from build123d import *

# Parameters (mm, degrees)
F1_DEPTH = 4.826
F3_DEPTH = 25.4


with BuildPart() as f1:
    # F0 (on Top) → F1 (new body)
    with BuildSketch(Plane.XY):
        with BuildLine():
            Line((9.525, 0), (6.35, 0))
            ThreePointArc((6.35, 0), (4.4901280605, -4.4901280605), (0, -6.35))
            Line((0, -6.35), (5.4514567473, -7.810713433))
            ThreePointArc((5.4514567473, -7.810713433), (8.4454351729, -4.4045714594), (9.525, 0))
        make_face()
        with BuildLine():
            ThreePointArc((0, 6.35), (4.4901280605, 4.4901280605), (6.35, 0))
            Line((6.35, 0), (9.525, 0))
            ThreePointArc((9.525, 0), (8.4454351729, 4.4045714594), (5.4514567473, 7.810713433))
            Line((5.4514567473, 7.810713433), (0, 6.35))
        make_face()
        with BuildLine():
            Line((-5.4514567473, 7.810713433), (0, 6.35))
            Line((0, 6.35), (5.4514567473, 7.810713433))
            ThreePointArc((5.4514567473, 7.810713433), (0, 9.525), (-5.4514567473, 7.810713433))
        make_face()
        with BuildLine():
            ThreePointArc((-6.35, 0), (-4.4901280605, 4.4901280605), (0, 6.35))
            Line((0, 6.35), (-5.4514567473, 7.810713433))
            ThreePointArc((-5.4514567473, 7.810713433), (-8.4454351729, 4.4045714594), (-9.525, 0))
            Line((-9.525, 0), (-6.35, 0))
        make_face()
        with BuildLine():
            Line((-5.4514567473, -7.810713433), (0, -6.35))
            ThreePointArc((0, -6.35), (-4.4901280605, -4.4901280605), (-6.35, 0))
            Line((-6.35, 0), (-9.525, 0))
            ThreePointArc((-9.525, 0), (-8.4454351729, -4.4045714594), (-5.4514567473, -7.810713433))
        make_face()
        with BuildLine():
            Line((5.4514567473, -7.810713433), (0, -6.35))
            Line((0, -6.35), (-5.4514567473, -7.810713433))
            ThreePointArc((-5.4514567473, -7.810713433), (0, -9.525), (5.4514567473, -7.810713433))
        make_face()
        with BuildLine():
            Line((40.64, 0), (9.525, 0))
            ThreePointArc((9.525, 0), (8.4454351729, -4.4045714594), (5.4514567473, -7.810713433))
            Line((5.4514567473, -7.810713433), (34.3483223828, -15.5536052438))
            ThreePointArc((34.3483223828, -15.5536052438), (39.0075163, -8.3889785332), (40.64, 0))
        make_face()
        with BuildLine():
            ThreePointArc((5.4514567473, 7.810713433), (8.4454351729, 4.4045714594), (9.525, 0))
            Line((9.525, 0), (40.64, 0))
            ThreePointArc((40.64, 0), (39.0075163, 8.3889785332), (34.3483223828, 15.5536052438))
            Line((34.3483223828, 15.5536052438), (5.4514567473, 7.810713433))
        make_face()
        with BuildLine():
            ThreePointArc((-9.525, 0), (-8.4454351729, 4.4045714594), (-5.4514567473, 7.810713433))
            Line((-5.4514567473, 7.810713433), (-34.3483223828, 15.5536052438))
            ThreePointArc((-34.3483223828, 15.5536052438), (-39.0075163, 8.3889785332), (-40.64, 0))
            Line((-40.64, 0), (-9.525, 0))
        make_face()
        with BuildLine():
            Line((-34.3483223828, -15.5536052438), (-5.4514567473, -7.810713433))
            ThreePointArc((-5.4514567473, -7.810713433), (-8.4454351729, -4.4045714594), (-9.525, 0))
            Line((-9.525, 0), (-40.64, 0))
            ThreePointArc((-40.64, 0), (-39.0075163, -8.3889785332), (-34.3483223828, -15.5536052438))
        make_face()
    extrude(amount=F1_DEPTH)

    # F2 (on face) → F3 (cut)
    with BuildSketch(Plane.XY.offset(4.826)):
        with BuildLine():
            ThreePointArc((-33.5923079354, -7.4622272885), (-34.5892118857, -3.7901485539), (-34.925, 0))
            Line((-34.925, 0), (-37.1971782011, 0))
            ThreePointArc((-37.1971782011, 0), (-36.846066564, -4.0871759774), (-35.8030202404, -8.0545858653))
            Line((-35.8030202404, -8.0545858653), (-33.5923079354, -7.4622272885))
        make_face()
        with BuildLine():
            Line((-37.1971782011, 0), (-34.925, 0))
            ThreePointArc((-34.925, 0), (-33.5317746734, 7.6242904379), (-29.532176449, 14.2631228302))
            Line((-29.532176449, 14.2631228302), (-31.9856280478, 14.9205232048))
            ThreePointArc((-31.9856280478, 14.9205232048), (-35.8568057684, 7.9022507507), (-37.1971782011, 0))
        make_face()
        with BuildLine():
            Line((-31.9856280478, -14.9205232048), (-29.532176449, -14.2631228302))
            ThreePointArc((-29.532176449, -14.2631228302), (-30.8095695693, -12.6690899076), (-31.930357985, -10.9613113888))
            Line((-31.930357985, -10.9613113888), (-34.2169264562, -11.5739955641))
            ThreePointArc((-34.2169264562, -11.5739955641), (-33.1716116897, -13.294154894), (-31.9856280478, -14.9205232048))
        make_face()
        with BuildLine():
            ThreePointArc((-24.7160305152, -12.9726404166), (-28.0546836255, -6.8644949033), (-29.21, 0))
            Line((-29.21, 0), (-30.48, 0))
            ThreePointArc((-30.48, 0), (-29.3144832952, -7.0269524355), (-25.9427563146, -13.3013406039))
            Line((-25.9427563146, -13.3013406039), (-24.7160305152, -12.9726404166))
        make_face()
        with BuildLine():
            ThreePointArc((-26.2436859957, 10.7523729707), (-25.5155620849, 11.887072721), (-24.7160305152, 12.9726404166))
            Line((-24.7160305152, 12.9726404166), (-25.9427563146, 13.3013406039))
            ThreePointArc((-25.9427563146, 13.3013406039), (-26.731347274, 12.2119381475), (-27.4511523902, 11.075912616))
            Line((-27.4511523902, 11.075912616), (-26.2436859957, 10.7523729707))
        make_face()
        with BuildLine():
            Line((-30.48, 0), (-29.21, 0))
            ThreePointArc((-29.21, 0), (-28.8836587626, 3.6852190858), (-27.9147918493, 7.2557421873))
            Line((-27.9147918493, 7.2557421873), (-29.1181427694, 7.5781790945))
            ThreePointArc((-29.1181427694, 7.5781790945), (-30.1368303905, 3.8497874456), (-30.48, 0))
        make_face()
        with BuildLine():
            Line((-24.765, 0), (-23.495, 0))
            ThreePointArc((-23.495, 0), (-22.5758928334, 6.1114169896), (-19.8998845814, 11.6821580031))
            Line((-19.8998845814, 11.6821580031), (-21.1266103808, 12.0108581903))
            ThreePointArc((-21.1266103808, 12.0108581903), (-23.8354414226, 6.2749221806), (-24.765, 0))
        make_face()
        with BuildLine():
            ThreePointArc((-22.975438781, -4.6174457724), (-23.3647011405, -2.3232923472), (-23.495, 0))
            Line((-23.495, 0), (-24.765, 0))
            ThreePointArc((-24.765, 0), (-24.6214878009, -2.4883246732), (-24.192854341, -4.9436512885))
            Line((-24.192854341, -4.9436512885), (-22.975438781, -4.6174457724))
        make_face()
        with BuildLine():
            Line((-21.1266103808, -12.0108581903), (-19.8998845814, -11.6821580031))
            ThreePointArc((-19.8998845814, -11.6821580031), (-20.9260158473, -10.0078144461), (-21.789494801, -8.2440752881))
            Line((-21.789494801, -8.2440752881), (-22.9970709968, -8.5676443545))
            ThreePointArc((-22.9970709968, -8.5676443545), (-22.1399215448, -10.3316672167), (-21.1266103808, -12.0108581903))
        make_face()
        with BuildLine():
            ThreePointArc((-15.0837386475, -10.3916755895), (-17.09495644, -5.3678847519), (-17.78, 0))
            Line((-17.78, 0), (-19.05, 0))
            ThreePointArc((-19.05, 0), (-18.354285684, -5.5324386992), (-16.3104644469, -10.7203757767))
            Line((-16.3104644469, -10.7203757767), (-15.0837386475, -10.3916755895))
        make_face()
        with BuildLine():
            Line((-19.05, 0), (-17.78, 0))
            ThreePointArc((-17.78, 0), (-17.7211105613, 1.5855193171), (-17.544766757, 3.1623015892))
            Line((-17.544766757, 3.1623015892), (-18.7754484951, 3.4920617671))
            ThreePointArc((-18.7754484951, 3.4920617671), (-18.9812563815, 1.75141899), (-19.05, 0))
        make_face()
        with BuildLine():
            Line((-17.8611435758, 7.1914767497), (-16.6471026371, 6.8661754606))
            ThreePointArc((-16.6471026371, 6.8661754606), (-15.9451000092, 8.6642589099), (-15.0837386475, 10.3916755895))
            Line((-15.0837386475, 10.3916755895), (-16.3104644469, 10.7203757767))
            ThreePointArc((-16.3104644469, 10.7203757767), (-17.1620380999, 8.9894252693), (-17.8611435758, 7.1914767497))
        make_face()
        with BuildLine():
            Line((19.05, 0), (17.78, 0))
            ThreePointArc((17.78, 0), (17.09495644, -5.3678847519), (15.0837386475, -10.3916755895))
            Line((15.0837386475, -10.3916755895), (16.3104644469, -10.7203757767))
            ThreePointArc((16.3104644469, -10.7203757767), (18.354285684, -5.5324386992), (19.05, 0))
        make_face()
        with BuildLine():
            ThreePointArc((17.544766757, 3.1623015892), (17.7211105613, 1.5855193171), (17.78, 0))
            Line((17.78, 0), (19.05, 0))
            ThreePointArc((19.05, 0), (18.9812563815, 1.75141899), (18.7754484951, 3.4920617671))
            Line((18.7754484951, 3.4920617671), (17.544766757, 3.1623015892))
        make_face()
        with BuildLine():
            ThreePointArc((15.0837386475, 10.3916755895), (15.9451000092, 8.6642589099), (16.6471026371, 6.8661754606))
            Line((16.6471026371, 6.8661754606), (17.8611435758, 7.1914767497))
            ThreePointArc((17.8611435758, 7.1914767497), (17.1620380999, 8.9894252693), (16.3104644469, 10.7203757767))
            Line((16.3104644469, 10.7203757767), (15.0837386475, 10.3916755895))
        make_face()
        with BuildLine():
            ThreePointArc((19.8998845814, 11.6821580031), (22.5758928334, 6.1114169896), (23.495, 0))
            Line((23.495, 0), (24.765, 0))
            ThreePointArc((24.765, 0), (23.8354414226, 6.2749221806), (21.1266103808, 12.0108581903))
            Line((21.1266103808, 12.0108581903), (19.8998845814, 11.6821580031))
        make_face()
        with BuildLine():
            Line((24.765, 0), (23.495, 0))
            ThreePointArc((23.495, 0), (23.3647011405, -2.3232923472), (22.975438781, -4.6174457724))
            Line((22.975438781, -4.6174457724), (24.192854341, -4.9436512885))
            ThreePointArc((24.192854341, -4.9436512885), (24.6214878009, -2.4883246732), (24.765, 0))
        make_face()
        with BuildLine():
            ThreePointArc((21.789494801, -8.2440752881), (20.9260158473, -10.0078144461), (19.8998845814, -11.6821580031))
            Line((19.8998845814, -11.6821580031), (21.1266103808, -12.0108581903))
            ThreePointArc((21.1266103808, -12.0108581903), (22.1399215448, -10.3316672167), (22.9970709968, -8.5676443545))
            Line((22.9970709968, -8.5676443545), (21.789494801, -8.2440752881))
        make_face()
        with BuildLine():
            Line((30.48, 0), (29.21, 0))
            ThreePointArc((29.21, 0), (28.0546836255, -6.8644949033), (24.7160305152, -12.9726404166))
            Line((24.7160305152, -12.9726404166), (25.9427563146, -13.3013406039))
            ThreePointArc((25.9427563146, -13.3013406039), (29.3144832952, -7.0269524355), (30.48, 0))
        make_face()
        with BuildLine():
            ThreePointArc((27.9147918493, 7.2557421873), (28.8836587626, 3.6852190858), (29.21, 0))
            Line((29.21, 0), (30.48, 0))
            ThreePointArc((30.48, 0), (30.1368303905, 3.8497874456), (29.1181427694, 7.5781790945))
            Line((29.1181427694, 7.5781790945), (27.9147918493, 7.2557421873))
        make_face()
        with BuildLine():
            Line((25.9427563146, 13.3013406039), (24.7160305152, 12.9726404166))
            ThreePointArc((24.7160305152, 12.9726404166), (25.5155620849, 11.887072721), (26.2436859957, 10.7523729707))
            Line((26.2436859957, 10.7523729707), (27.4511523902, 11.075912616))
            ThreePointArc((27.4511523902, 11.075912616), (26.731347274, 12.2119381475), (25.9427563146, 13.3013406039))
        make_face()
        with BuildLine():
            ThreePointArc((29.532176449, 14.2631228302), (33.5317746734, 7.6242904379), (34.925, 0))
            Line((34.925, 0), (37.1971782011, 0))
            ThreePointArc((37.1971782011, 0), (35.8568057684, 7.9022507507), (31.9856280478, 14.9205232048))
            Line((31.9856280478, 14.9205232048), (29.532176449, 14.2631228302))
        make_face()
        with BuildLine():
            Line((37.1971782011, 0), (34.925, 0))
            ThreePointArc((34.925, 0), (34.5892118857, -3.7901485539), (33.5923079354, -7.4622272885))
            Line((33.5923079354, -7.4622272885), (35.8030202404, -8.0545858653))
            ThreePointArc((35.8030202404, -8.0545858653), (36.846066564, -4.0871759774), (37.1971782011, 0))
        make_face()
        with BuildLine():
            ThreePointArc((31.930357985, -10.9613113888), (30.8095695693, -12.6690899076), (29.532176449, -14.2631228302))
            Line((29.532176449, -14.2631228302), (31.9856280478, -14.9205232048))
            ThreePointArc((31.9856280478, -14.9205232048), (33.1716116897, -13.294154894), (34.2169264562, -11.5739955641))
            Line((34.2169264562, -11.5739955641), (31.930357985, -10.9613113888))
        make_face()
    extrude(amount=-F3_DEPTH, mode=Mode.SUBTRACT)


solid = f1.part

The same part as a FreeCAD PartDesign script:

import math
import FreeCAD as App
import Part
import Sketcher

V = App.Vector
Q = App.Units.Quantity

doc = App.newDocument("Part")
body = doc.addObject("PartDesign::Body", "Body")

# Sketch on XY plane
sketch1 = body.newObject("Sketcher::SketchObject", "Sketch")
sketch1.AttachmentSupport = (doc.getObject("XY_Plane"), [""])
sketch1.MapMode = "FlatFace"
sketch1.addGeometry(Part.ArcOfCircle(Part.Circle(V(0, 0, 0), V(0, 0, 1), 10), math.radians(-125), math.radians(-55)), False)
sketch1.addGeometry(Part.LineSegment(V(5, -8, 0), V(34, -16, 0)), False)
sketch1.addGeometry(Part.ArcOfCircle(Part.Circle(V(18, 0, 0), V(0, 0, 1), 22), math.radians(-44), math.radians(0)), False)
sketch1.addGeometry(Part.ArcOfCircle(Part.Circle(V(18, 0, 0), V(0, 0, 1), 22), math.radians(0), math.radians(44)), False)
sketch1.addGeometry(Part.LineSegment(V(34, 16, 0), V(5, 8, 0)), False)
sketch1.addGeometry(Part.ArcOfCircle(Part.Circle(V(0, 0, 0), V(0, 0, 1), 10), math.radians(55), math.radians(125)), False)
sketch1.addGeometry(Part.LineSegment(V(-5, 8, 0), V(-34, 16, 0)), False)
sketch1.addGeometry(Part.ArcOfCircle(Part.Circle(V(-18, 0, 0), V(0, 0, 1), 22), math.radians(136), math.radians(180)), False)
sketch1.addGeometry(Part.ArcOfCircle(Part.Circle(V(-18, 0, 0), V(0, 0, 1), 22), math.radians(180), math.radians(224)), False)
sketch1.addGeometry(Part.LineSegment(V(-34, -16, 0), V(-5, -8, 0)), False)
sketch1.addGeometry(Part.ArcOfCircle(Part.Circle(V(0, 0, 0), V(0, 0, 1), 6), math.radians(-90), math.radians(0)), False)
sketch1.addGeometry(Part.ArcOfCircle(Part.Circle(V(0, 0, 0), V(0, 0, 1), 6), math.radians(180), math.radians(270)), False)
sketch1.addGeometry(Part.ArcOfCircle(Part.Circle(V(0, 0, 0), V(0, 0, 1), 6), math.radians(90), math.radians(180)), False)
sketch1.addGeometry(Part.ArcOfCircle(Part.Circle(V(0, 0, 0), V(0, 0, 1), 6), math.radians(0), math.radians(90)), False)
sketch1.addConstraint(Sketcher.Constraint("Coincident", 0, 2, 1, 1))
sketch1.addConstraint(Sketcher.Constraint("Coincident", 1, 2, 2, 1))
sketch1.addConstraint(Sketcher.Constraint("Tangent", 2, 2, 3, 1))
sketch1.addConstraint(Sketcher.Constraint("Coincident", 3, 2, 4, 1))
sketch1.addConstraint(Sketcher.Constraint("Coincident", 4, 2, 5, 1))
sketch1.addConstraint(Sketcher.Constraint("Coincident", 5, 2, 6, 1))
sketch1.addConstraint(Sketcher.Constraint("Coincident", 6, 2, 7, 1))
sketch1.addConstraint(Sketcher.Constraint("Tangent", 7, 2, 8, 1))
sketch1.addConstraint(Sketcher.Constraint("Coincident", 8, 2, 9, 1))
sketch1.addConstraint(Sketcher.Constraint("Coincident", 9, 2, 0, 1))
sketch1.addConstraint(Sketcher.Constraint("Tangent", 10, 1, 11, 2))
sketch1.addConstraint(Sketcher.Constraint("Tangent", 11, 1, 12, 2))
sketch1.addConstraint(Sketcher.Constraint("Tangent", 12, 1, 13, 2))
sketch1.addConstraint(Sketcher.Constraint("Tangent", 13, 1, 10, 2))
sketch1.addConstraint(Sketcher.Constraint("Coincident", 0, 3, -1, 1))
sketch1.addConstraint(Sketcher.Constraint("Coincident", 5, 3, -1, 1))
sketch1.addConstraint(Sketcher.Constraint("Coincident", 10, 3, -1, 1))
sketch1.addConstraint(Sketcher.Constraint("Equal", 2, 3))
sketch1.addConstraint(Sketcher.Constraint("Equal", 0, 5))
sketch1.addConstraint(Sketcher.Constraint("Equal", 3, 7))
sketch1.addConstraint(Sketcher.Constraint("Equal", 7, 8))
sketch1.addConstraint(Sketcher.Constraint("Equal", 10, 11))
sketch1.addConstraint(Sketcher.Constraint("Symmetric", 2, 3, 7, 3, -1, 1))
sketch1.addConstraint(Sketcher.Constraint("Symmetric", 3, 2, 6, 2, -2))
sketch1.addConstraint(Sketcher.Constraint("PointOnObject", 2, 2, -1))
sketch1.addConstraint(Sketcher.Constraint("PointOnObject", 7, 2, -1))
sketch1.addConstraint(Sketcher.Constraint("PointOnObject", 10, 1, -2))
sketch1.addConstraint(Sketcher.Constraint("PointOnObject", 11, 1, -1))
sketch1.addConstraint(Sketcher.Constraint("PointOnObject", 12, 1, -2))
sketch1.addConstraint(Sketcher.Constraint("PointOnObject", 13, 1, -1))
sketch1.addConstraint(Sketcher.Constraint("Parallel", 1, 6))
sketch1.addConstraint(Sketcher.Constraint("Parallel", 4, 9))
sketch1.addConstraint(Sketcher.Constraint("Horizontal", 4, 2, 5, 2))
sketch1.addConstraint(Sketcher.Constraint("Horizontal", 1, 2, 8, 2))
sketch1.addConstraint(Sketcher.Constraint("Vertical", 1, 2, 3, 2))
sketch1.addConstraint(Sketcher.Constraint("Radius", 10, Q("0.25 in")))
sketch1.addConstraint(Sketcher.Constraint("Angle", 1, Q("-15 deg")))
sketch1.addConstraint(Sketcher.Constraint("Radius", 0, Q("0.375 in")))
sketch1.addConstraint(Sketcher.Constraint("DistanceX", -1, 1, 2, 2, Q("1.6 in")))
sketch1.addConstraint(Sketcher.Constraint("Radius", 2, 22.37081))
sketch1.addConstraint(Sketcher.Constraint("DistanceX", 2, 3, 1, 2, 16.079132))
pad1 = body.newObject("PartDesign::Pad", "Pad")
pad1.Profile = sketch1
pad1.Length = Q("0.19 in")

# Sketch on XY plane
sketch2 = body.newObject("Sketcher::SketchObject", "Sketch001")
sketch2.AttachmentSupport = (doc.getObject("XY_Plane"), [""])
sketch2.MapMode = "FlatFace"
sketch2.AttachmentOffset = App.Placement(V(0, 0, 0.19 * 25.4), App.Rotation())
sketch2.addGeometry(Part.ArcOfCircle(Part.Circle(V(-13.366792, 0, 0), V(0, 0, 1), 21.558208), math.radians(180), math.radians(200.251598)), False)
sketch2.addGeometry(Part.ArcOfCircle(Part.Circle(V(-13.366792, 0, 0), V(0, 0, 1), 21.558208), math.radians(138.577234), math.radians(180)), False)
sketch2.addGeometry(Part.LineSegment(V(-29.532176, 14.263123, 0), V(-31.985628, 14.920523, 0)), False)
sketch2.addGeometry(Part.ArcOfCircle(Part.Circle(V(-13.232882, 0, 0), V(0, 0, 1), 23.964297), math.radians(141.492674), math.radians(180)), False)
sketch2.addGeometry(Part.ArcOfCircle(Part.Circle(V(-13.232882, 0, 0), V(0, 0, 1), 23.964297), math.radians(-180), math.radians(-160.360086)), False)
sketch2.addGeometry(Part.LineSegment(V(-35.80302, -8.054586, 0), V(-33.592308, -7.462227, 0)), False)
sketch2.addGeometry(Part.LineSegment(V(-31.985628, -14.920523, 0), V(-29.532176, -14.263123, 0)), False)
sketch2.addGeometry(Part.ArcOfCircle(Part.Circle(V(-13.366792, 0, 0), V(0, 0, 1), 21.558208), math.radians(-149.439234), math.radians(-138.577234)), False)
sketch2.addGeometry(Part.LineSegment(V(-31.930358, -10.961311, 0), V(-34.216926, -11.573996, 0)), False)
sketch2.addGeometry(Part.ArcOfCircle(Part.Circle(V(-13.232882, 0, 0), V(0, 0, 1), 23.964297), math.radians(-151.120554), math.radians(-141.492674)), False)
sketch2.addGeometry(Part.ArcOfCircle(Part.Circle(V(-8.239101, 0, 0), V(0, 0, 1), 20.970899), math.radians(180), math.radians(218.214118)), False)
sketch2.addGeometry(Part.ArcOfCircle(Part.Circle(V(-8.239101, 0, 0), V(0, 0, 1), 20.970899), math.radians(159.757699), math.radians(180)), False)
sketch2.addGeometry(Part.LineSegment(V(-27.914792, 7.255742, 0), V(-29.118143, 7.578179, 0)), False)
sketch2.addGeometry(Part.ArcOfCircle(Part.Circle(V(-8.714336, 0, 0), V(0, 0, 1), 21.765664), math.radians(159.624497), math.radians(217.670225)), False)
sketch2.addGeometry(Part.LineSegment(V(-25.942756, -13.301341, 0), V(-24.716031, -12.97264, 0)), False)
sketch2.addGeometry(Part.ArcOfCircle(Part.Circle(V(-8.239101, 0, 0), V(0, 0, 1), 20.970899), math.radians(141.785882), math.radians(149.15427)), False)
sketch2.addGeometry(Part.LineSegment(V(-24.716031, 12.97264, 0), V(-25.942756, 13.301341, 0)), False)
sketch2.addGeometry(Part.ArcOfCircle(Part.Circle(V(-8.714336, 0, 0), V(0, 0, 1), 21.765664), math.radians(142.329775), math.radians(149.411351)), False)
sketch2.addGeometry(Part.LineSegment(V(-27.451152, 11.075913, 0), V(-26.243686, 10.752373, 0)), False)
sketch2.addGeometry(Part.ArcOfCircle(Part.Circle(V(-2.717132, 0, 0), V(0, 0, 1), 20.777868), math.radians(145.789119), math.radians(180)), False)
sketch2.addGeometry(Part.LineSegment(V(-19.899885, 11.682158, 0), V(-21.12661, 12.010858, 0)), False)
sketch2.addGeometry(Part.ArcOfCircle(Part.Circle(V(-3.121002, 0, 0), V(0, 0, 1), 21.643998), math.radians(146.294251), math.radians(180)), False)
sketch2.addGeometry(Part.ArcOfCircle(Part.Circle(V(-3.121002, 0, 0), V(0, 0, 1), 21.643998), math.radians(180), math.radians(193.203332)), False)
sketch2.addGeometry(Part.LineSegment(V(-24.192854, -4.943651, 0), V(-22.975439, -4.617446, 0)), False)
sketch2.addGeometry(Part.ArcOfCircle(Part.Circle(V(-2.717132, 0, 0), V(0, 0, 1), 20.777868), math.radians(180), math.radians(192.839989)), False)
sketch2.addGeometry(Part.LineSegment(V(-21.12661, -12.010858, 0), V(-19.899885, -11.682158, 0)), False)
sketch2.addGeometry(Part.ArcOfCircle(Part.Circle(V(-2.717132, 0, 0), V(0, 0, 1), 20.777868), math.radians(-156.623468), math.radians(-145.789119)), False)
sketch2.addGeometry(Part.LineSegment(V(-21.789495, -8.244075, 0), V(-22.997071, -8.567644, 0)), False)
sketch2.addGeometry(Part.ArcOfCircle(Part.Circle(V(-3.121002, 0, 0), V(0, 0, 1), 21.643998), math.radians(-156.681384), math.radians(-146.294251)), False)
sketch2.addGeometry(Part.ArcOfCircle(Part.Circle(V(3.593437, 0, 0), V(0, 0, 1), 21.373437), math.radians(180), math.radians(209.090848)), False)
sketch2.addGeometry(Part.ArcOfCircle(Part.Circle(V(3.593437, 0, 0), V(0, 0, 1), 21.373437), math.radians(171.49158), math.radians(180)), False)
sketch2.addGeometry(Part.LineSegment(V(-17.544767, 3.162302, 0), V(-18.775448, 3.492062, 0)), False)
sketch2.addGeometry(Part.ArcOfCircle(Part.Circle(V(3.295304, 0, 0), V(0, 0, 1), 22.345304), math.radians(171.009122), math.radians(180)), False)
sketch2.addGeometry(Part.ArcOfCircle(Part.Circle(V(3.295304, 0, 0), V(0, 0, 1), 22.345304), math.radians(180), math.radians(208.669707)), False)
sketch2.addGeometry(Part.LineSegment(V(-16.310464, -10.720376, 0), V(-15.083739, -10.391676, 0)), False)
sketch2.addGeometry(Part.LineSegment(V(-17.861144, 7.191477, 0), V(-16.647103, 6.866175, 0)), False)
sketch2.addGeometry(Part.ArcOfCircle(Part.Circle(V(3.593437, 0, 0), V(0, 0, 1), 21.373437), math.radians(150.909152), math.radians(161.261581)), False)
sketch2.addGeometry(Part.LineSegment(V(-15.083739, 10.391676, 0), V(-16.310464, 10.720376, 0)), False)
sketch2.addGeometry(Part.ArcOfCircle(Part.Circle(V(3.295304, 0, 0), V(0, 0, 1), 22.345304), math.radians(151.330293), math.radians(161.226132)), False)
sketch2.addGeometry(Part.ArcOfCircle(Part.Circle(V(-3.593437, 0, 0), V(0, 0, 1), 21.373437), math.radians(-29.090848), math.radians(0)), False)
sketch2.addGeometry(Part.LineSegment(V(15.083739, -10.391676, 0), V(16.310464, -10.720376, 0)), False)
sketch2.addGeometry(Part.ArcOfCircle(Part.Circle(V(-3.295304, 0, 0), V(0, 0, 1), 22.345304), math.radians(-28.669707), math.radians(0)), False)
sketch2.addGeometry(Part.ArcOfCircle(Part.Circle(V(-3.295304, 0, 0), V(0, 0, 1), 22.345304), math.radians(0), math.radians(8.990878)), False)
sketch2.addGeometry(Part.LineSegment(V(18.775448, 3.492062, 0), V(17.544767, 3.162302, 0)), False)
sketch2.addGeometry(Part.ArcOfCircle(Part.Circle(V(-3.593437, 0, 0), V(0, 0, 1), 21.373437), math.radians(0), math.radians(8.50842)), False)
sketch2.addGeometry(Part.ArcOfCircle(Part.Circle(V(-3.593437, 0, 0), V(0, 0, 1), 21.373437), math.radians(18.738419), math.radians(29.090848)), False)
sketch2.addGeometry(Part.LineSegment(V(16.647103, 6.866175, 0), V(17.861144, 7.191477, 0)), False)
sketch2.addGeometry(Part.ArcOfCircle(Part.Circle(V(-3.295304, 0, 0), V(0, 0, 1), 22.345304), math.radians(18.773868), math.radians(28.669707)), False)
sketch2.addGeometry(Part.LineSegment(V(16.310464, 10.720376, 0), V(15.083739, 10.391676, 0)), False)
sketch2.addGeometry(Part.ArcOfCircle(Part.Circle(V(2.717132, 0, 0), V(0, 0, 1), 20.777868), math.radians(0), math.radians(34.210881)), False)
sketch2.addGeometry(Part.ArcOfCircle(Part.Circle(V(2.717132, 0, 0), V(0, 0, 1), 20.777868), math.radians(-12.839989), math.radians(0)), False)
sketch2.addGeometry(Part.LineSegment(V(22.975439, -4.617446, 0), V(24.192854, -4.943651, 0)), False)
sketch2.addGeometry(Part.ArcOfCircle(Part.Circle(V(3.121002, 0, 0), V(0, 0, 1), 21.643998), math.radians(-13.203332), math.radians(0)), False)
sketch2.addGeometry(Part.ArcOfCircle(Part.Circle(V(3.121002, 0, 0), V(0, 0, 1), 21.643998), math.radians(0), math.radians(33.705749)), False)
sketch2.addGeometry(Part.LineSegment(V(21.12661, 12.010858, 0), V(19.899885, 11.682158, 0)), False)
sketch2.addGeometry(Part.ArcOfCircle(Part.Circle(V(2.717132, 0, 0), V(0, 0, 1), 20.777868), math.radians(-34.210881), math.radians(-23.376532)), False)
sketch2.addGeometry(Part.LineSegment(V(19.899885, -11.682158, 0), V(21.12661, -12.010858, 0)), False)
sketch2.addGeometry(Part.ArcOfCircle(Part.Circle(V(3.121002, 0, 0), V(0, 0, 1), 21.643998), math.radians(-33.705749), math.radians(-23.318616)), False)
sketch2.addGeometry(Part.LineSegment(V(22.997071, -8.567644, 0), V(21.789495, -8.244075, 0)), False)
sketch2.addGeometry(Part.ArcOfCircle(Part.Circle(V(8.239101, 0, 0), V(0, 0, 1), 20.970899), math.radians(-38.214118), math.radians(0)), False)
sketch2.addGeometry(Part.LineSegment(V(24.716031, -12.97264, 0), V(25.942756, -13.301341, 0)), False)
sketch2.addGeometry(Part.ArcOfCircle(Part.Circle(V(8.714336, 0, 0), V(0, 0, 1), 21.765664), math.radians(-37.670225), math.radians(20.375503)), False)
sketch2.addGeometry(Part.LineSegment(V(29.118143, 7.578179, 0), V(27.914792, 7.255742, 0)), False)
sketch2.addGeometry(Part.ArcOfCircle(Part.Circle(V(8.239101, 0, 0), V(0, 0, 1), 20.970899), math.radians(0), math.radians(20.242301)), False)
sketch2.addGeometry(Part.LineSegment(V(25.942756, 13.301341, 0), V(24.716031, 12.97264, 0)), False)
sketch2.addGeometry(Part.ArcOfCircle(Part.Circle(V(8.239101, 0, 0), V(0, 0, 1), 20.970899), math.radians(30.84573), math.radians(38.214118)), False)
sketch2.addGeometry(Part.LineSegment(V(26.243686, 10.752373, 0), V(27.451152, 11.075913, 0)), False)
sketch2.addGeometry(Part.ArcOfCircle(Part.Circle(V(8.714336, 0, 0), V(0, 0, 1), 21.765664), math.radians(30.588649), math.radians(37.670225)), False)
sketch2.addGeometry(Part.ArcOfCircle(Part.Circle(V(13.366792, 0, 0), V(0, 0, 1), 21.558208), math.radians(0), math.radians(41.422766)), False)
sketch2.addGeometry(Part.ArcOfCircle(Part.Circle(V(13.366792, 0, 0), V(0, 0, 1), 21.558208), math.radians(-20.251598), math.radians(0)), False)
sketch2.addGeometry(Part.LineSegment(V(33.592308, -7.462227, 0), V(35.80302, -8.054586, 0)), False)
sketch2.addGeometry(Part.ArcOfCircle(Part.Circle(V(13.232882, 0, 0), V(0, 0, 1), 23.964297), math.radians(-19.639914), math.radians(0)), False)
sketch2.addGeometry(Part.ArcOfCircle(Part.Circle(V(13.232882, 0, 0), V(0, 0, 1), 23.964297), math.radians(0), math.radians(38.507326)), False)
sketch2.addGeometry(Part.LineSegment(V(31.985628, 14.920523, 0), V(29.532176, 14.263123, 0)), False)
sketch2.addGeometry(Part.ArcOfCircle(Part.Circle(V(13.366792, 0, 0), V(0, 0, 1), 21.558208), math.radians(-41.422766), math.radians(-30.560766)), False)
sketch2.addGeometry(Part.LineSegment(V(29.532176, -14.263123, 0), V(31.985628, -14.920523, 0)), False)
sketch2.addGeometry(Part.ArcOfCircle(Part.Circle(V(13.232882, 0, 0), V(0, 0, 1), 23.964297), math.radians(-38.507326), math.radians(-28.879446)), False)
sketch2.addGeometry(Part.LineSegment(V(34.216926, -11.573996, 0), V(31.930358, -10.961311, 0)), False)
sketch2.addConstraint(Sketcher.Constraint("Coincident", 0, 1, 1, 2))
sketch2.addConstraint(Sketcher.Constraint("Coincident", 1, 1, 2, 1))
sketch2.addConstraint(Sketcher.Constraint("Coincident", 2, 2, 3, 1))
sketch2.addConstraint(Sketcher.Constraint("Coincident", 3, 2, 4, 1))
sketch2.addConstraint(Sketcher.Constraint("Coincident", 4, 2, 5, 1))
sketch2.addConstraint(Sketcher.Constraint("Coincident", 5, 2, 0, 2))
sketch2.addConstraint(Sketcher.Constraint("Coincident", 6, 2, 7, 2))
sketch2.addConstraint(Sketcher.Constraint("Coincident", 7, 1, 8, 1))
sketch2.addConstraint(Sketcher.Constraint("Coincident", 8, 2, 9, 1))
sketch2.addConstraint(Sketcher.Constraint("Coincident", 9, 2, 6, 1))
sketch2.addConstraint(Sketcher.Constraint("Coincident", 10, 1, 11, 2))
sketch2.addConstraint(Sketcher.Constraint("Coincident", 11, 1, 12, 1))
sketch2.addConstraint(Sketcher.Constraint("Coincident", 12, 2, 13, 1))
sketch2.addConstraint(Sketcher.Constraint("Coincident", 13, 2, 14, 1))
sketch2.addConstraint(Sketcher.Constraint("Coincident", 14, 2, 10, 2))
sketch2.addConstraint(Sketcher.Constraint("Coincident", 15, 1, 16, 1))
sketch2.addConstraint(Sketcher.Constraint("Coincident", 16, 2, 17, 1))
sketch2.addConstraint(Sketcher.Constraint("Coincident", 17, 2, 18, 1))
sketch2.addConstraint(Sketcher.Constraint("Coincident", 18, 2, 15, 2))
sketch2.addConstraint(Sketcher.Constraint("Coincident", 19, 1, 20, 1))
sketch2.addConstraint(Sketcher.Constraint("Coincident", 20, 2, 21, 1))
sketch2.addConstraint(Sketcher.Constraint("Coincident", 21, 2, 22, 1))
sketch2.addConstraint(Sketcher.Constraint("Coincident", 22, 2, 23, 1))
sketch2.addConstraint(Sketcher.Constraint("Coincident", 23, 2, 24, 2))
sketch2.addConstraint(Sketcher.Constraint("Coincident", 24, 1, 19, 2))
sketch2.addConstraint(Sketcher.Constraint("Coincident", 25, 2, 26, 2))
sketch2.addConstraint(Sketcher.Constraint("Coincident", 26, 1, 27, 1))
sketch2.addConstraint(Sketcher.Constraint("Coincident", 27, 2, 28, 1))
sketch2.addConstraint(Sketcher.Constraint("Coincident", 28, 2, 25, 1))
sketch2.addConstraint(Sketcher.Constraint("Coincident", 29, 1, 30, 2))
sketch2.addConstraint(Sketcher.Constraint("Coincident", 30, 1, 31, 1))
sketch2.addConstraint(Sketcher.Constraint("Coincident", 31, 2, 32, 1))
sketch2.addConstraint(Sketcher.Constraint("Coincident", 32, 2, 33, 1))
sketch2.addConstraint(Sketcher.Constraint("Coincident", 33, 2, 34, 1))
sketch2.addConstraint(Sketcher.Constraint("Coincident", 34, 2, 29, 2))
sketch2.addConstraint(Sketcher.Constraint("Coincident", 35, 2, 36, 2))
sketch2.addConstraint(Sketcher.Constraint("Coincident", 36, 1, 37, 1))
sketch2.addConstraint(Sketcher.Constraint("Coincident", 37, 2, 38, 1))
sketch2.addConstraint(Sketcher.Constraint("Coincident", 38, 2, 35, 1))
sketch2.addConstraint(Sketcher.Constraint("Coincident", 39, 1, 40, 1))
sketch2.addConstraint(Sketcher.Constraint("Coincident", 40, 2, 41, 1))
sketch2.addConstraint(Sketcher.Constraint("Coincident", 41, 2, 42, 1))
sketch2.addConstraint(Sketcher.Constraint("Coincident", 42, 2, 43, 1))
sketch2.addConstraint(Sketcher.Constraint("Coincident", 43, 2, 44, 2))
sketch2.addConstraint(Sketcher.Constraint("Coincident", 44, 1, 39, 2))
sketch2.addConstraint(Sketcher.Constraint("Coincident", 45, 1, 46, 1))
sketch2.addConstraint(Sketcher.Constraint("Coincident", 46, 2, 47, 1))
sketch2.addConstraint(Sketcher.Constraint("Coincident", 47, 2, 48, 1))
sketch2.addConstraint(Sketcher.Constraint("Coincident", 48, 2, 45, 2))
sketch2.addConstraint(Sketcher.Constraint("Coincident", 49, 1, 50, 2))
sketch2.addConstraint(Sketcher.Constraint("Coincident", 50, 1, 51, 1))
sketch2.addConstraint(Sketcher.Constraint("Coincident", 51, 2, 52, 1))
sketch2.addConstraint(Sketcher.Constraint("Coincident", 52, 2, 53, 1))
sketch2.addConstraint(Sketcher.Constraint("Coincident", 53, 2, 54, 1))
sketch2.addConstraint(Sketcher.Constraint("Coincident", 54, 2, 49, 2))
sketch2.addConstraint(Sketcher.Constraint("Coincident", 55, 1, 56, 1))
sketch2.addConstraint(Sketcher.Constraint("Coincident", 56, 2, 57, 1))
sketch2.addConstraint(Sketcher.Constraint("Coincident", 57, 2, 58, 1))
sketch2.addConstraint(Sketcher.Constraint("Coincident", 58, 2, 55, 2))
sketch2.addConstraint(Sketcher.Constraint("Coincident", 59, 1, 60, 1))
sketch2.addConstraint(Sketcher.Constraint("Coincident", 60, 2, 61, 1))
sketch2.addConstraint(Sketcher.Constraint("Coincident", 61, 2, 62, 1))
sketch2.addConstraint(Sketcher.Constraint("Coincident", 62, 2, 63, 2))
sketch2.addConstraint(Sketcher.Constraint("Coincident", 63, 1, 59, 2))
sketch2.addConstraint(Sketcher.Constraint("Coincident", 64, 2, 65, 2))
sketch2.addConstraint(Sketcher.Constraint("Coincident", 65, 1, 66, 1))
sketch2.addConstraint(Sketcher.Constraint("Coincident", 66, 2, 67, 1))
sketch2.addConstraint(Sketcher.Constraint("Coincident", 67, 2, 64, 1))
sketch2.addConstraint(Sketcher.Constraint("Coincident", 68, 1, 69, 2))
sketch2.addConstraint(Sketcher.Constraint("Coincident", 69, 1, 70, 1))
sketch2.addConstraint(Sketcher.Constraint("Coincident", 70, 2, 71, 1))
sketch2.addConstraint(Sketcher.Constraint("Coincident", 71, 2, 72, 1))
sketch2.addConstraint(Sketcher.Constraint("Coincident", 72, 2, 73, 1))
sketch2.addConstraint(Sketcher.Constraint("Coincident", 73, 2, 68, 2))
sketch2.addConstraint(Sketcher.Constraint("Coincident", 74, 1, 75, 1))
sketch2.addConstraint(Sketcher.Constraint("Coincident", 75, 2, 76, 1))
sketch2.addConstraint(Sketcher.Constraint("Coincident", 76, 2, 77, 1))
sketch2.addConstraint(Sketcher.Constraint("Coincident", 77, 2, 74, 2))
sketch2.addConstraint(Sketcher.Constraint("Coincident", 1, 3, 0, 3))
sketch2.addConstraint(Sketcher.Constraint("Coincident", 4, 3, 3, 3))
sketch2.addConstraint(Sketcher.Constraint("Coincident", 7, 3, 0, 3))
sketch2.addConstraint(Sketcher.Constraint("Coincident", 9, 3, 3, 3))
sketch2.addConstraint(Sketcher.Constraint("Coincident", 11, 3, 10, 3))
sketch2.addConstraint(Sketcher.Constraint("Coincident", 15, 3, 10, 3))
sketch2.addConstraint(Sketcher.Constraint("Coincident", 17, 3, 13, 3))
sketch2.addConstraint(Sketcher.Constraint("Coincident", 22, 3, 21, 3))
sketch2.addConstraint(Sketcher.Constraint("Coincident", 24, 3, 19, 3))
sketch2.addConstraint(Sketcher.Constraint("Coincident", 26, 3, 19, 3))
sketch2.addConstraint(Sketcher.Constraint("Coincident", 28, 3, 21, 3))
sketch2.addConstraint(Sketcher.Constraint("Coincident", 30, 3, 29, 3))
sketch2.addConstraint(Sketcher.Constraint("Coincident", 33, 3, 32, 3))
sketch2.addConstraint(Sketcher.Constraint("Coincident", 36, 3, 29, 3))
sketch2.addConstraint(Sketcher.Constraint("Coincident", 38, 3, 32, 3))
sketch2.addConstraint(Sketcher.Constraint("Coincident", 42, 3, 41, 3))
sketch2.addConstraint(Sketcher.Constraint("Coincident", 44, 3, 39, 3))
sketch2.addConstraint(Sketcher.Constraint("Coincident", 45, 3, 39, 3))
sketch2.addConstraint(Sketcher.Constraint("Coincident", 47, 3, 41, 3))
sketch2.addConstraint(Sketcher.Constraint("Coincident", 50, 3, 49, 3))
sketch2.addConstraint(Sketcher.Constraint("Coincident", 53, 3, 52, 3))
sketch2.addConstraint(Sketcher.Constraint("Coincident", 55, 3, 49, 3))
sketch2.addConstraint(Sketcher.Constraint("Coincident", 57, 3, 52, 3))
sketch2.addConstraint(Sketcher.Constraint("Coincident", 63, 3, 59, 3))
sketch2.addConstraint(Sketcher.Constraint("Coincident", 65, 3, 59, 3))
sketch2.addConstraint(Sketcher.Constraint("Coincident", 67, 3, 61, 3))
sketch2.addConstraint(Sketcher.Constraint("Coincident", 69, 3, 68, 3))
sketch2.addConstraint(Sketcher.Constraint("Coincident", 72, 3, 71, 3))
sketch2.addConstraint(Sketcher.Constraint("Coincident", 74, 3, 68, 3))
sketch2.addConstraint(Sketcher.Constraint("Coincident", 76, 3, 71, 3))
sketch2.addConstraint(Sketcher.Constraint("PointOnObject", 0, 3, -1))
sketch2.addConstraint(Sketcher.Constraint("PointOnObject", 3, 3, -1))
sketch2.addConstraint(Sketcher.Constraint("PointOnObject", 10, 3, -1))
sketch2.addConstraint(Sketcher.Constraint("PointOnObject", 13, 3, -1))
sketch2.addConstraint(Sketcher.Constraint("PointOnObject", 19, 3, -1))
sketch2.addConstraint(Sketcher.Constraint("PointOnObject", 21, 3, -1))
sketch2.addConstraint(Sketcher.Constraint("PointOnObject", 29, 3, -1))
sketch2.addConstraint(Sketcher.Constraint("PointOnObject", 32, 3, -1))
sketch2.addConstraint(Sketcher.Constraint("PointOnObject", 39, 3, -1))
sketch2.addConstraint(Sketcher.Constraint("PointOnObject", 41, 3, -1))
sketch2.addConstraint(Sketcher.Constraint("PointOnObject", 49, 3, -1))
sketch2.addConstraint(Sketcher.Constraint("PointOnObject", 52, 3, -1))
sketch2.addConstraint(Sketcher.Constraint("PointOnObject", 59, 3, -1))
sketch2.addConstraint(Sketcher.Constraint("PointOnObject", 61, 3, -1))
sketch2.addConstraint(Sketcher.Constraint("PointOnObject", 68, 3, -1))
sketch2.addConstraint(Sketcher.Constraint("PointOnObject", 71, 3, -1))
sketch2.addConstraint(Sketcher.Constraint("PointOnObject", 0, 1, -1))
sketch2.addConstraint(Sketcher.Constraint("PointOnObject", 3, 2, -1))
sketch2.addConstraint(Sketcher.Constraint("PointOnObject", 10, 1, -1))
sketch2.addConstraint(Sketcher.Constraint("PointOnObject", 21, 2, -1))
sketch2.addConstraint(Sketcher.Constraint("PointOnObject", 24, 1, -1))
sketch2.addConstraint(Sketcher.Constraint("PointOnObject", 29, 1, -1))
sketch2.addConstraint(Sketcher.Constraint("PointOnObject", 32, 2, -1))
sketch2.addConstraint(Sketcher.Constraint("PointOnObject", 41, 2, -1))
sketch2.addConstraint(Sketcher.Constraint("PointOnObject", 44, 1, -1))
sketch2.addConstraint(Sketcher.Constraint("PointOnObject", 49, 1, -1))
sketch2.addConstraint(Sketcher.Constraint("PointOnObject", 52, 2, -1))
sketch2.addConstraint(Sketcher.Constraint("PointOnObject", 63, 1, -1))
sketch2.addConstraint(Sketcher.Constraint("PointOnObject", 68, 1, -1))
sketch2.addConstraint(Sketcher.Constraint("PointOnObject", 71, 2, -1))
sketch2.addConstraint(Sketcher.Constraint("Distance", 2, Q("0.1 in")))
sketch2.addConstraint(Sketcher.Constraint("Distance", 6, Q("0.1 in")))
sketch2.addConstraint(Sketcher.Constraint("Distance", 73, Q("0.1 in")))
sketch2.addConstraint(Sketcher.Constraint("Distance", 75, Q("0.1 in")))
sketch2.addConstraint(Sketcher.Constraint("DistanceX", 29, 1, -1, 1, Q("0.7 in")))
sketch2.addConstraint(Sketcher.Constraint("DistanceX", -1, 1, 44, 1, Q("0.7 in")))
sketch2.addConstraint(Sketcher.Constraint("Distance", 14, Q("0.05 in")))
sketch2.addConstraint(Sketcher.Constraint("Distance", 16, Q("0.05 in")))
sketch2.addConstraint(Sketcher.Constraint("Distance", 20, Q("0.05 in")))
sketch2.addConstraint(Sketcher.Constraint("Distance", 25, Q("0.05 in")))
sketch2.addConstraint(Sketcher.Constraint("Distance", 34, Q("0.05 in")))
sketch2.addConstraint(Sketcher.Constraint("Distance", 37, Q("0.05 in")))
sketch2.addConstraint(Sketcher.Constraint("Distance", 40, Q("0.05 in")))
sketch2.addConstraint(Sketcher.Constraint("Distance", 48, Q("0.05 in")))
sketch2.addConstraint(Sketcher.Constraint("Distance", 54, Q("0.05 in")))
sketch2.addConstraint(Sketcher.Constraint("Distance", 56, Q("0.05 in")))
sketch2.addConstraint(Sketcher.Constraint("Distance", 60, Q("0.05 in")))
sketch2.addConstraint(Sketcher.Constraint("Distance", 64, Q("0.05 in")))
sketch2.addConstraint(Sketcher.Constraint("DistanceX", 10, 1, -1, 1, Q("1.15 in")))
sketch2.addConstraint(Sketcher.Constraint("DistanceX", 32, 2, -1, 1, Q("0.75 in")))
sketch2.addConstraint(Sketcher.Constraint("DistanceX", -1, 1, 41, 2, Q("0.75 in")))
sketch2.addConstraint(Sketcher.Constraint("DistanceX", -1, 1, 63, 1, Q("1.15 in")))
sketch2.addConstraint(Sketcher.Constraint("Radius", 10, 20.970899))
sketch2.addConstraint(Sketcher.Constraint("Radius", 15, 20.970899))
sketch2.addConstraint(Sketcher.Constraint("Radius", 59, 20.970899))
sketch2.addConstraint(Sketcher.Constraint("Radius", 65, 20.970899))
sketch2.addConstraint(Sketcher.Constraint("DistanceX", 0, 1, -1, 1, Q("1.375 in")))
sketch2.addConstraint(Sketcher.Constraint("DistanceX", 21, 2, -1, 1, Q("0.975 in")))
sketch2.addConstraint(Sketcher.Constraint("DistanceX", 24, 1, -1, 1, Q("0.925 in")))
sketch2.addConstraint(Sketcher.Constraint("DistanceX", -1, 1, 49, 1, Q("0.925 in")))
sketch2.addConstraint(Sketcher.Constraint("DistanceX", -1, 1, 52, 2, Q("0.975 in")))
sketch2.addConstraint(Sketcher.Constraint("DistanceX", -1, 1, 68, 1, Q("1.375 in")))
sketch2.addConstraint(Sketcher.Constraint("Radius", 19, 20.777868))
sketch2.addConstraint(Sketcher.Constraint("Radius", 26, 20.777868))
sketch2.addConstraint(Sketcher.Constraint("Radius", 49, 20.777868))
sketch2.addConstraint(Sketcher.Constraint("Radius", 55, 20.777868))
sketch2.addConstraint(Sketcher.Constraint("DistanceY", -1, 1, 30, 1, Q("0.1245001 in")))
sketch2.addConstraint(Sketcher.Constraint("DistanceY", -1, 1, 43, 2, Q("0.1245001 in")))
sketch2.addConstraint(Sketcher.Constraint("Radius", 0, 21.558208))
sketch2.addConstraint(Sketcher.Constraint("Radius", 3, 23.964297))
sketch2.addConstraint(Sketcher.Constraint("Radius", 7, 21.558208))
sketch2.addConstraint(Sketcher.Constraint("Radius", 9, 23.964297))
sketch2.addConstraint(Sketcher.Constraint("Radius", 13, 21.765664))
sketch2.addConstraint(Sketcher.Constraint("Radius", 17, 21.765664))
sketch2.addConstraint(Sketcher.Constraint("Radius", 21, 21.643998))
sketch2.addConstraint(Sketcher.Constraint("Radius", 28, 21.643998))
sketch2.addConstraint(Sketcher.Constraint("Radius", 29, 21.373437))
sketch2.addConstraint(Sketcher.Constraint("Radius", 32, 22.345304))
sketch2.addConstraint(Sketcher.Constraint("Radius", 36, 21.373437))
sketch2.addConstraint(Sketcher.Constraint("Radius", 38, 22.345304))
sketch2.addConstraint(Sketcher.Constraint("Radius", 39, 21.373437))
sketch2.addConstraint(Sketcher.Constraint("Radius", 41, 22.345304))
sketch2.addConstraint(Sketcher.Constraint("Radius", 45, 21.373437))
sketch2.addConstraint(Sketcher.Constraint("Radius", 47, 22.345304))
sketch2.addConstraint(Sketcher.Constraint("Radius", 52, 21.643998))
sketch2.addConstraint(Sketcher.Constraint("Radius", 57, 21.643998))
sketch2.addConstraint(Sketcher.Constraint("Radius", 61, 21.765664))
sketch2.addConstraint(Sketcher.Constraint("Radius", 67, 21.765664))
sketch2.addConstraint(Sketcher.Constraint("Radius", 68, 21.558208))
sketch2.addConstraint(Sketcher.Constraint("Radius", 71, 23.964297))
sketch2.addConstraint(Sketcher.Constraint("Radius", 74, 21.558208))
sketch2.addConstraint(Sketcher.Constraint("Radius", 76, 23.964297))
sketch2.addConstraint(Sketcher.Constraint("Distance", 12, 1.245801))
sketch2.addConstraint(Sketcher.Constraint("Distance", 62, 1.245801))
sketch2.addConstraint(Sketcher.Constraint("Distance", 8, 2.36723))
sketch2.addConstraint(Sketcher.Constraint("Distance", 18, 1.250061))
sketch2.addConstraint(Sketcher.Constraint("Distance", 23, 1.260361))
sketch2.addConstraint(Sketcher.Constraint("Distance", 51, 1.260361))
sketch2.addConstraint(Sketcher.Constraint("Distance", 66, 1.250061))
sketch2.addConstraint(Sketcher.Constraint("Distance", 77, 2.36723))
sketch2.addConstraint(Sketcher.Constraint("DistanceX", 3, 3, -1, 1, 13.232882))
sketch2.addConstraint(Sketcher.Constraint("DistanceX", -1, 1, 71, 3, 13.232882))
sketch2.addConstraint(Sketcher.Constraint("DistanceX", 2, 2, -1, 1, 31.985628))
sketch2.addConstraint(Sketcher.Constraint("DistanceX", 4, 2, -1, 1, 35.80302))
sketch2.addConstraint(Sketcher.Constraint("DistanceY", 7, 1, -1, 1, 10.961311))
sketch2.addConstraint(Sketcher.Constraint("DistanceX", 9, 2, -1, 1, 31.985628))
sketch2.addConstraint(Sketcher.Constraint("DistanceX", 11, 1, -1, 1, 27.914792))
sketch2.addConstraint(Sketcher.Constraint("DistanceY", -1, 1, 12, 2, 7.578179))
sketch2.addConstraint(Sketcher.Constraint("DistanceY", 13, 2, -1, 1, 13.301341))
sketch2.addConstraint(Sketcher.Constraint("DistanceX", 15, 1, -1, 1, 24.716031))
sketch2.addConstraint(Sketcher.Constraint("DistanceY", -1, 1, 19, 1, 11.682158))
sketch2.addConstraint(Sketcher.Constraint("DistanceY", 22, 2, -1, 1, 4.943651))
sketch2.addConstraint(Sketcher.Constraint("DistanceY", 25, 2, -1, 1, 11.682158))
sketch2.addConstraint(Sketcher.Constraint("DistanceX", 27, 2, -1, 1, 22.997071))
sketch2.addConstraint(Sketcher.Constraint("DistanceX", 31, 2, -1, 1, 18.775448))
sketch2.addConstraint(Sketcher.Constraint("DistanceX", 34, 2, -1, 1, 15.083739))
sketch2.addConstraint(Sketcher.Constraint("DistanceX", 36, 1, -1, 1, 15.083739))
sketch2.addConstraint(Sketcher.Constraint("DistanceX", -1, 1, 39, 1, 15.083739))
sketch2.addConstraint(Sketcher.Constraint("DistanceX", -1, 1, 42, 2, 18.775448))
sketch2.addConstraint(Sketcher.Constraint("DistanceX", -1, 1, 48, 2, 15.083739))
sketch2.addConstraint(Sketcher.Constraint("DistanceX", -1, 1, 50, 1, 22.975439))
sketch2.addConstraint(Sketcher.Constraint("DistanceX", -1, 1, 53, 2, 21.12661))
sketch2.addConstraint(Sketcher.Constraint("DistanceY", 55, 1, -1, 1, 11.682158))
sketch2.addConstraint(Sketcher.Constraint("DistanceX", -1, 1, 57, 2, 22.997071))
sketch2.addConstraint(Sketcher.Constraint("DistanceX", -1, 1, 59, 1, 24.716031))
sketch2.addConstraint(Sketcher.Constraint("DistanceY", 60, 2, -1, 1, 13.301341))
sketch2.addConstraint(Sketcher.Constraint("DistanceY", -1, 1, 61, 2, 7.578179))
sketch2.addConstraint(Sketcher.Constraint("DistanceX", -1, 1, 64, 2, 24.716031))
sketch2.addConstraint(Sketcher.Constraint("DistanceX", -1, 1, 70, 2, 35.80302))
sketch2.addConstraint(Sketcher.Constraint("DistanceX", -1, 1, 72, 2, 31.985628))
sketch2.addConstraint(Sketcher.Constraint("DistanceX", -1, 1, 75, 2, 31.985628))
sketch2.addConstraint(Sketcher.Constraint("DistanceY", 77, 2, -1, 1, 10.961311))
sketch2.addConstraint(Sketcher.Constraint("Distance", 5, 2.288698))
sketch2.addConstraint(Sketcher.Constraint("Distance", 27, 1.250175))
sketch2.addConstraint(Sketcher.Constraint("Distance", 35, 1.256868))
sketch2.addConstraint(Sketcher.Constraint("Distance", 46, 1.256868))
sketch2.addConstraint(Sketcher.Constraint("Distance", 58, 1.250175))
sketch2.addConstraint(Sketcher.Constraint("Distance", 70, 2.288698))
sketch2.addConstraint(Sketcher.Constraint("DistanceX", 17, 2, -1, 1, 27.451152))
sketch2.addConstraint(Sketcher.Constraint("DistanceX", 35, 2, -1, 1, 16.647103))
sketch2.addConstraint(Sketcher.Constraint("DistanceX", -1, 1, 45, 1, 16.647103))
sketch2.addConstraint(Sketcher.Constraint("DistanceX", -1, 1, 65, 1, 26.243686))
pocket1 = body.newObject("PartDesign::Pocket", "Pocket")
pocket1.Profile = sketch2
pocket1.Length = Q("1 in")

doc.recompute()
